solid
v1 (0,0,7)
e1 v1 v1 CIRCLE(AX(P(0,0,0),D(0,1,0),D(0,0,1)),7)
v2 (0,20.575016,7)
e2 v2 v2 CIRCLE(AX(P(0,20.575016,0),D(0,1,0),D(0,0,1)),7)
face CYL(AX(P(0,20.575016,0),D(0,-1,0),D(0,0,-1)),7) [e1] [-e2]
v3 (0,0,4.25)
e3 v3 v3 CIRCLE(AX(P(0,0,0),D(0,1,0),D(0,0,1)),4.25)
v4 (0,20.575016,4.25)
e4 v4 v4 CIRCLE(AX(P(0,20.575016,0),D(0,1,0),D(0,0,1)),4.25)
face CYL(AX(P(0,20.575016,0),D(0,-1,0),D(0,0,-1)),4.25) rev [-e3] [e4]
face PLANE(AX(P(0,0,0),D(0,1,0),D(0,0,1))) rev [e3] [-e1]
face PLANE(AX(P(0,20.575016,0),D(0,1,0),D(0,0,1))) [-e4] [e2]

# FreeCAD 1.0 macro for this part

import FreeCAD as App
import Part
import Sketcher

doc = App.newDocument("Part")
body = doc.addObject("PartDesign::Body", "Body")

# Sketch on XZ plane
sketch1 = body.newObject("Sketcher::SketchObject", "Sketch")
sketch1.AttachmentSupport = (doc.getObject("XZ_Plane"), [""])
sketch1.MapMode = "FlatFace"
sketch1.addGeometry([
    Part.Circle(App.Vector(0, 0, 0), App.Vector(0, 0, 1), 7),
    Part.Circle(App.Vector(0, 0, 0), App.Vector(0, 0, 1), 4.2),
], False)
sketch1.addConstraint([
    Sketcher.Constraint("Coincident", 0, 3, -1, 1),
    Sketcher.Constraint("Coincident", 1, 3, -1, 1),
    Sketcher.Constraint("Diameter", 0, 14.0),
    Sketcher.Constraint("Diameter", 1, 8.5),
])
pad1 = body.newObject("PartDesign::Pad", "Pad")
pad1.Profile = sketch1
pad1.Length = 20.575016
pad1.Reversed = True

doc.recompute()
